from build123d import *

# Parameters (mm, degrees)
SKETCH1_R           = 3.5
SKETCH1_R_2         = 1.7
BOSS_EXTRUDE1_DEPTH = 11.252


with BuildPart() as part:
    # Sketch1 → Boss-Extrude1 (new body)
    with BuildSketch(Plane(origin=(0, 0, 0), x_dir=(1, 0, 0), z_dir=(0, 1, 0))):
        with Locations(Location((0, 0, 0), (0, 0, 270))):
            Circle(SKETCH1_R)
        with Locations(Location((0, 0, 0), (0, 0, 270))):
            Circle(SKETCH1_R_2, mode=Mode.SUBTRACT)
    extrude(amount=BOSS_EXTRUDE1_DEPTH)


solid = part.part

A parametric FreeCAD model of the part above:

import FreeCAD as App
import Part
import Sketcher
from FreeCAD import Vector
Q = App.Units.Quantity

doc = App.newDocument("Part")
body = doc.addObject("PartDesign::Body", "Body")

sketch1 = body.newObject("Sketcher::SketchObject", "Sketch")
sketch1.AttachmentSupport = (doc.getObject("XZ_Plane"), [""])
sketch1.MapMode = "FlatFace"
sketch1.addGeometry(Part.Circle(Vector(0, 0, 0), Vector(0, 0, 1), 3.5), False)
sketch1.addGeometry(Part.Circle(Vector(0, 0, 0), Vector(0, 0, 1), 1.7), False)
sketch1.addConstraint(Sketcher.Constraint("Coincident", 0, 3, -1, 1))
sketch1.addConstraint(Sketcher.Constraint("Coincident", 1, 3, -1, 1))
sketch1.addConstraint(Sketcher.Constraint("Diameter", 0, Q("7 mm")))
sketch1.addConstraint(Sketcher.Constraint("Diameter", 1, Q("3.4 mm")))
pad1 = body.newObject("PartDesign::Pad", "Pad")
pad1.Profile = sketch1
pad1.Length = 11.252
pad1.Reversed = True

doc.recompute()
